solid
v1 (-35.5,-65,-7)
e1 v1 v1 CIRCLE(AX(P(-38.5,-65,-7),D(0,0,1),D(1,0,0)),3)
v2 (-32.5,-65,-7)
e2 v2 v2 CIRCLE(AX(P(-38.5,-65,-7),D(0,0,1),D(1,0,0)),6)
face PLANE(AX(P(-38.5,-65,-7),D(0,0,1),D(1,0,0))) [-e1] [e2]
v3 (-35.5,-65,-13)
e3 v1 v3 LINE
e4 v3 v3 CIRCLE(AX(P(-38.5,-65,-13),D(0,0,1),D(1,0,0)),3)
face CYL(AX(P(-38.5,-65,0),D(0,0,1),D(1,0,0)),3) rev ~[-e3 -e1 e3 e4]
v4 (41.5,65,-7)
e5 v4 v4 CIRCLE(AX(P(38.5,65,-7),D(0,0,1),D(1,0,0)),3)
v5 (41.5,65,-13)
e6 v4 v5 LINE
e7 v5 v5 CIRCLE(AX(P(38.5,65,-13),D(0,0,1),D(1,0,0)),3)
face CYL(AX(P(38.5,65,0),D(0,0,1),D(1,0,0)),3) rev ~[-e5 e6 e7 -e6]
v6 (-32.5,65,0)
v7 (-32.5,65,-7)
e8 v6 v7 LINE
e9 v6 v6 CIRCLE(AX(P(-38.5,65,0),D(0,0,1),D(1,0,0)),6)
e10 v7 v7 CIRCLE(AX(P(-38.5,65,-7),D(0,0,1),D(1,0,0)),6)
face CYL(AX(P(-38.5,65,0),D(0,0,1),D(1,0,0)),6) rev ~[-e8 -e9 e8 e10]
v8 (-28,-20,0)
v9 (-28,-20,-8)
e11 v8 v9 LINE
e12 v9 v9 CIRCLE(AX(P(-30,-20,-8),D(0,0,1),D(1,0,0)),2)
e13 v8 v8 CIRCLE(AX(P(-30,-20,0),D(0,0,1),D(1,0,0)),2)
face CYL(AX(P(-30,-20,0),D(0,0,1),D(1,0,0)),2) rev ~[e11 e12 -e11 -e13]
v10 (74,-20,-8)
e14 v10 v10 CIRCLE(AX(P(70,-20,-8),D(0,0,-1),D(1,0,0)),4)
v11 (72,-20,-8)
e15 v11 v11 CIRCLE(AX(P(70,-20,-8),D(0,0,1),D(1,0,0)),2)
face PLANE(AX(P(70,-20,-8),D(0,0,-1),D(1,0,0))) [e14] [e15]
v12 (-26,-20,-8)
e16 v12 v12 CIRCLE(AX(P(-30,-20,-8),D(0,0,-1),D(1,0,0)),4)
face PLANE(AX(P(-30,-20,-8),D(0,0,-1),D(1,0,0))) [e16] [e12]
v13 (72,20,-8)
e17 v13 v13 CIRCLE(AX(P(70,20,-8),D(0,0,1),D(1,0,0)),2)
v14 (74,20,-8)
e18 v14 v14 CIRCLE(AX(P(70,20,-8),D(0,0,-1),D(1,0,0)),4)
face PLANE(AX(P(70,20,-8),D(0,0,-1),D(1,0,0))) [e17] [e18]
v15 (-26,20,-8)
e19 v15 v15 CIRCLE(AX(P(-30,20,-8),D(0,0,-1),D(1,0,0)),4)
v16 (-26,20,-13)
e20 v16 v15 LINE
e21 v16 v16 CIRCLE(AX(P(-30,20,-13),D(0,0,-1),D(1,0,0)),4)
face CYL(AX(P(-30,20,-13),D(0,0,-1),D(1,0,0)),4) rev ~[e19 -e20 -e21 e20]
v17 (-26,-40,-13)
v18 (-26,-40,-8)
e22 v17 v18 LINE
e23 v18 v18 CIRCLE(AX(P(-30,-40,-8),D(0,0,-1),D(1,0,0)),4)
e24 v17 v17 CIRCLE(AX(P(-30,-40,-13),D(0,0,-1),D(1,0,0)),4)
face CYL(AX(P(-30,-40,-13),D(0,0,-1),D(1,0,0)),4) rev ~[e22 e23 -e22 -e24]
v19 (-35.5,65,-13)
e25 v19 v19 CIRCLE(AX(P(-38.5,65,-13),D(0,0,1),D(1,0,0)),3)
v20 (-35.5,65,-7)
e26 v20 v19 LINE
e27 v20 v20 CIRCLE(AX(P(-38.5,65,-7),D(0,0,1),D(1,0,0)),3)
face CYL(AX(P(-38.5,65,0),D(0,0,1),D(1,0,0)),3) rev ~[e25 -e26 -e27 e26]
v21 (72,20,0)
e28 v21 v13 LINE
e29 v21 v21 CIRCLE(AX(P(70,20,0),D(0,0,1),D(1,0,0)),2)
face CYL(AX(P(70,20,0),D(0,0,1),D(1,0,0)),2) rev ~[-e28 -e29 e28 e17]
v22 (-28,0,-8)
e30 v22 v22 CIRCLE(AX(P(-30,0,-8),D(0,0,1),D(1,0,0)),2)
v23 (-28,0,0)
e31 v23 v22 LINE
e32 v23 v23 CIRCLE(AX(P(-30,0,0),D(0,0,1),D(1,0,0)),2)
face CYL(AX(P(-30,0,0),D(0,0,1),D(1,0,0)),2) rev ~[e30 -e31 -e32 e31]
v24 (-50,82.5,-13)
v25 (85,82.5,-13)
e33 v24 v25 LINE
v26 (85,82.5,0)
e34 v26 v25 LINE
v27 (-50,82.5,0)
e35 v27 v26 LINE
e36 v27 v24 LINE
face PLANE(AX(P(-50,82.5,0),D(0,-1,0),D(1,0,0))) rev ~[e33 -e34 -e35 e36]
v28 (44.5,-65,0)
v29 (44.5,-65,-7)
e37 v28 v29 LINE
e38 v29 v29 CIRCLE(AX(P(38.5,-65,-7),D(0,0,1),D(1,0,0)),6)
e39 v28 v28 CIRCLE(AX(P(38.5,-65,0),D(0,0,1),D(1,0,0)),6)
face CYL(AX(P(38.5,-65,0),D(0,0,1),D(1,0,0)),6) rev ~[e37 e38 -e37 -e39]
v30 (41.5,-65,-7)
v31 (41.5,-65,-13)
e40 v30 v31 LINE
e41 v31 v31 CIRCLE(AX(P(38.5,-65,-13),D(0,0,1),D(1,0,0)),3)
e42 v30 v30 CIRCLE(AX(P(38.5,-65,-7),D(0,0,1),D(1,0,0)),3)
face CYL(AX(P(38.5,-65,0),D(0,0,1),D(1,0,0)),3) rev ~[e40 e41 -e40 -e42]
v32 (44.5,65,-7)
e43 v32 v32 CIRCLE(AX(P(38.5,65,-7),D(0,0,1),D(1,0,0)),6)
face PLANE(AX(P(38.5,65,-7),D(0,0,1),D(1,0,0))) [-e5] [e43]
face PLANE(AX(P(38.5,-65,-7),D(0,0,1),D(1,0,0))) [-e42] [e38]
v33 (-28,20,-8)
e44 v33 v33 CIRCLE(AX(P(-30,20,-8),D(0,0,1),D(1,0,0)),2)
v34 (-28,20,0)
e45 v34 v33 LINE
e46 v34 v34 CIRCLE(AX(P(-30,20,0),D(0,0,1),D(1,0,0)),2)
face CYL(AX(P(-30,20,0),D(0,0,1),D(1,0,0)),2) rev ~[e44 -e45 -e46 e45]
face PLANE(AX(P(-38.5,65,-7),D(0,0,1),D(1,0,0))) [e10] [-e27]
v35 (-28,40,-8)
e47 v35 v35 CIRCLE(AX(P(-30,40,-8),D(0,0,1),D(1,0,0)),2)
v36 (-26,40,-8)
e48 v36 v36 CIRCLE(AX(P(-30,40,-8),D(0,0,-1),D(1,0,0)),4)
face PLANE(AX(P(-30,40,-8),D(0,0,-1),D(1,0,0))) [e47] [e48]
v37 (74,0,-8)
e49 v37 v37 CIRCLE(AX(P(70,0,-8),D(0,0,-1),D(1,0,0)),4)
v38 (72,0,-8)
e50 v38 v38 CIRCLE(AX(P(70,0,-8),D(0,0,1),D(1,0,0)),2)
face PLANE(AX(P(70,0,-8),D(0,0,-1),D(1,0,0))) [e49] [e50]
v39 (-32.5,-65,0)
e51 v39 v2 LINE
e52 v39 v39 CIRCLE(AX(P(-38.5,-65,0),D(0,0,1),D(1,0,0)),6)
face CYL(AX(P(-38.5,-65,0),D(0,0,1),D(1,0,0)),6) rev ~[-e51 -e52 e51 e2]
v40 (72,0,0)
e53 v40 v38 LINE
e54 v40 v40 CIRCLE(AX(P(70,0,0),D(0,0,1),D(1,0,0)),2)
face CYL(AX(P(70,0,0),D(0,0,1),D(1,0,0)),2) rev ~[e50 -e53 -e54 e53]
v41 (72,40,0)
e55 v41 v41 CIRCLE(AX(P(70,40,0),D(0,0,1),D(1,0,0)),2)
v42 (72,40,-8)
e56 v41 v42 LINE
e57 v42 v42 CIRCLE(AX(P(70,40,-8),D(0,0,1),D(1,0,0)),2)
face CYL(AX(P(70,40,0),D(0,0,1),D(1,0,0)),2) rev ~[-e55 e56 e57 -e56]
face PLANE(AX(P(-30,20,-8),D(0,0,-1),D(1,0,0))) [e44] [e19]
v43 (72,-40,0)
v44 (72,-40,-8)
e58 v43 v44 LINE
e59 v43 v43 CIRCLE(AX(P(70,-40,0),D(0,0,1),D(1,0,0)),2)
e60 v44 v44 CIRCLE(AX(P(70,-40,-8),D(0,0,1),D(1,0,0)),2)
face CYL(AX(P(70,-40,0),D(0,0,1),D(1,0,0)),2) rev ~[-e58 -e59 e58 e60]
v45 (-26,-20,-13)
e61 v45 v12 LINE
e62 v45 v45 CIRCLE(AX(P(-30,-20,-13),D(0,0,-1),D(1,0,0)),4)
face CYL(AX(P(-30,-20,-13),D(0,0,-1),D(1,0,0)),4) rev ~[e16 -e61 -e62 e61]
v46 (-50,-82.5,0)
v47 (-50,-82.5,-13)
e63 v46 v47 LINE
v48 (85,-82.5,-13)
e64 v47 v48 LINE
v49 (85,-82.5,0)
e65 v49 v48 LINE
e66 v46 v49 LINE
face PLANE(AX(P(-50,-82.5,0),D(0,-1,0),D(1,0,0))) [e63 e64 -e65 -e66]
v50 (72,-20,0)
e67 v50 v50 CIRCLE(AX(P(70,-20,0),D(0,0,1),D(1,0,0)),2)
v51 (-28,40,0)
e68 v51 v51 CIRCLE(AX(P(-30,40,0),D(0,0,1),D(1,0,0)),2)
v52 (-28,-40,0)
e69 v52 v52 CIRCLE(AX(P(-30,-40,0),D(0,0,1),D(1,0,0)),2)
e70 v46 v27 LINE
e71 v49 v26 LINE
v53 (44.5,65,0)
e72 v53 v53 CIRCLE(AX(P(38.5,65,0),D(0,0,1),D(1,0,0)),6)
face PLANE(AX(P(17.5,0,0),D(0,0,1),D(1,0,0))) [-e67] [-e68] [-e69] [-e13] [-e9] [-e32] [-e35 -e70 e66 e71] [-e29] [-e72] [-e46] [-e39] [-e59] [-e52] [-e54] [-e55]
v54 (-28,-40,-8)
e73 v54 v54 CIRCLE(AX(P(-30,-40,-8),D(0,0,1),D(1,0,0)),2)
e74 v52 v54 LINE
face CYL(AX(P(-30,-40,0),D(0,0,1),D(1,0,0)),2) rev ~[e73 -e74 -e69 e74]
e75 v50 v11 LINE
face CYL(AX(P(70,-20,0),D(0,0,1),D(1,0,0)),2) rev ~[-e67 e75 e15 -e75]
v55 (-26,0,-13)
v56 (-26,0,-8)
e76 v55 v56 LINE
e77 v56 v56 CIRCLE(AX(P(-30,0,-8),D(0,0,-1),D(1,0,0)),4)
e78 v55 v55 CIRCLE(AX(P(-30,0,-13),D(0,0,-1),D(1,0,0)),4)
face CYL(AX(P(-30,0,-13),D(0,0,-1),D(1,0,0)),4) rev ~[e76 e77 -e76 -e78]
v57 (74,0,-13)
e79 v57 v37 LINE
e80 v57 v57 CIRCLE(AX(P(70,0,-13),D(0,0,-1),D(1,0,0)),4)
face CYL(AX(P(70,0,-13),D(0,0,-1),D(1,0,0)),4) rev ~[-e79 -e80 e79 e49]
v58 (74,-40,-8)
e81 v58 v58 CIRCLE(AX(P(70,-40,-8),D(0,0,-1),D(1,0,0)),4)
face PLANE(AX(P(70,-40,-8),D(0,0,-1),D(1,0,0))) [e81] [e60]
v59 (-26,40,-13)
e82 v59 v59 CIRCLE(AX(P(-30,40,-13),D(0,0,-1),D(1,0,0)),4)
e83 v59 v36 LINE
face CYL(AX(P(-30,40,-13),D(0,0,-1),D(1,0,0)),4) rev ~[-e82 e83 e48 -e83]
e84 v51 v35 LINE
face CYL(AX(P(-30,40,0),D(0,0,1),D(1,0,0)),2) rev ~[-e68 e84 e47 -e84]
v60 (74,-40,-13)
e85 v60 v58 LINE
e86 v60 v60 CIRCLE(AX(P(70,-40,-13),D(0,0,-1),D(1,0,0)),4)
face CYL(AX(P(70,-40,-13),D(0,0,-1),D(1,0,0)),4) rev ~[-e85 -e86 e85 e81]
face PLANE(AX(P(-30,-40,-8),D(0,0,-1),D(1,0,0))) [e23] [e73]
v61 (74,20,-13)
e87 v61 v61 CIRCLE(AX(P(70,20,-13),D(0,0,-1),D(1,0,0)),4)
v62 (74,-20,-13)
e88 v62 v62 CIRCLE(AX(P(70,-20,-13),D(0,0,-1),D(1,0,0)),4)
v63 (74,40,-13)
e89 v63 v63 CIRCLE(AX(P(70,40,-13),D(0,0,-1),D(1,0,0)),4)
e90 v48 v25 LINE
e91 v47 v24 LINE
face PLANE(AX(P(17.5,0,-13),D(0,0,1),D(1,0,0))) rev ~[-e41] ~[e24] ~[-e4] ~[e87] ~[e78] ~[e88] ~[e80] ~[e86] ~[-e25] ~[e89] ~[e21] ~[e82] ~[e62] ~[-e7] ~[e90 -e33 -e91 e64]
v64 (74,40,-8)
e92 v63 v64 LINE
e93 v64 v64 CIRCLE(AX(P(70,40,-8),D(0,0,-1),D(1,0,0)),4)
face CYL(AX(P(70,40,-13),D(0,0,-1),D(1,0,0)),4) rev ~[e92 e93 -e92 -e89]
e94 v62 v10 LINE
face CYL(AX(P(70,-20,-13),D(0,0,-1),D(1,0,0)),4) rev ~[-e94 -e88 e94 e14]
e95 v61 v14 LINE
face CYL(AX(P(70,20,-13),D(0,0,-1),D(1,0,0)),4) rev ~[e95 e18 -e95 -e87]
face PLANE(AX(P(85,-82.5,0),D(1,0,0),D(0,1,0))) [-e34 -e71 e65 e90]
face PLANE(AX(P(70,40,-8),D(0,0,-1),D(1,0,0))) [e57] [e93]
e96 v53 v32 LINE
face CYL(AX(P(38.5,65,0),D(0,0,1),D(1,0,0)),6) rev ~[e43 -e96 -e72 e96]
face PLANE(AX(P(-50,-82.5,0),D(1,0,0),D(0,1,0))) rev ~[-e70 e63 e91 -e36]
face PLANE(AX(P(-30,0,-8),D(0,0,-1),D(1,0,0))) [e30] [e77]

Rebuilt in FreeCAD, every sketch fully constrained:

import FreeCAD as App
import Part
import Sketcher

doc = App.newDocument("Part")
body = doc.addObject("PartDesign::Body", "Body")

sketch1 = body.newObject("Sketcher::SketchObject", "Sketch")
sketch1.AttachmentSupport = (doc.getObject("XY_Plane"), [""])
sketch1.MapMode = "FlatFace"
sketch1.addGeometry([
    Part.LineSegment(App.Vector(-50, 82.5, 0), App.Vector(-50, -82.5, 0)),
    Part.LineSegment(App.Vector(-50, -82.5, 0), App.Vector(85, -82.5, 0)),
    Part.LineSegment(App.Vector(85, -82.5, 0), App.Vector(85, 82.5, 0)),
    Part.LineSegment(App.Vector(85, 82.5, 0), App.Vector(-50, 82.5, 0)),
    Part.Circle(App.Vector(-38.5, -65, 0), App.Vector(0, 0, 1), 3),
    Part.Circle(App.Vector(-30, -40, 0), App.Vector(0, 0, 1), 2),
    Part.Circle(App.Vector(-30, -20, 0), App.Vector(0, 0, 1), 2),
    Part.Circle(App.Vector(38.5, -65, 0), App.Vector(0, 0, 1), 3),
    Part.Circle(App.Vector(70, -40, 0), App.Vector(0, 0, 1), 2),
    Part.Circle(App.Vector(70, -20, 0), App.Vector(0, 0, 1), 2),
    Part.Circle(App.Vector(-30, 0, 0), App.Vector(0, 0, 1), 2),
    Part.Circle(App.Vector(-30, 20, 0), App.Vector(0, 0, 1), 2),
    Part.Circle(App.Vector(-30, 40, 0), App.Vector(0, 0, 1), 2),
    Part.Circle(App.Vector(-38.5, 65, 0), App.Vector(0, 0, 1), 3),
    Part.Circle(App.Vector(70, 0, 0), App.Vector(0, 0, 1), 2),
    Part.Circle(App.Vector(70, 20, 0), App.Vector(0, 0, 1), 2),
    Part.Circle(App.Vector(38.5, 65, 0), App.Vector(0, 0, 1), 3),
    Part.Circle(App.Vector(70, 40, 0), App.Vector(0, 0, 1), 2),
], False)
sketch1.addConstraint([
    Sketcher.Constraint("Coincident", 0, 2, 1, 1),
    Sketcher.Constraint("Coincident", 1, 2, 2, 1),
    Sketcher.Constraint("Coincident", 2, 2, 3, 1),
    Sketcher.Constraint("Coincident", 3, 2, 0, 1),
    Sketcher.Constraint("Vertical", 0),
    Sketcher.Constraint("Horizontal", 1),
    Sketcher.Constraint("Vertical", 2),
    Sketcher.Constraint("Horizontal", 3),
    Sketcher.Constraint("Equal", 5, 6),
    Sketcher.Constraint("Equal", 4, 7),
    Sketcher.Constraint("Equal", 6, 8),
    Sketcher.Constraint("Equal", 8, 9),
    Sketcher.Constraint("Equal", 9, 10),
    Sketcher.Constraint("Equal", 10, 11),
    Sketcher.Constraint("Equal", 11, 12),
    Sketcher.Constraint("Equal", 7, 13),
    Sketcher.Constraint("Equal", 12, 14),
    Sketcher.Constraint("Equal", 14, 15),
    Sketcher.Constraint("Equal", 13, 16),
    Sketcher.Constraint("Equal", 15, 17),
    Sketcher.Constraint("Symmetric", 7, 3, 13, 3, -1, 1),
    Sketcher.Constraint("Symmetric", 4, 3, 16, 3, -1, 1),
    Sketcher.Constraint("Symmetric", 4, 3, 7, 3, -2),
    Sketcher.Constraint("Symmetric", 6, 3, 11, 3, -1),
    Sketcher.Constraint("Symmetric", 5, 3, 12, 3, -1),
    Sketcher.Constraint("Symmetric", 9, 3, 15, 3, -1),
    Sketcher.Constraint("Symmetric", 8, 3, 17, 3, -1),
    Sketcher.Constraint("PointOnObject", 10, 3, -1),
    Sketcher.Constraint("PointOnObject", 14, 3, -1),
    Sketcher.Constraint("Horizontal", 5, 3, 8, 3),
    Sketcher.Constraint("Horizontal", 6, 3, 9, 3),
    Sketcher.Constraint("Vertical", 5, 3, 6, 3),
    Sketcher.Constraint("Vertical", 8, 3, 9, 3),
    Sketcher.Constraint("Vertical", 6, 3, 10, 3),
    Sketcher.Constraint("Vertical", 9, 3, 14, 3),
    Sketcher.Constraint("Diameter", 4, 6.0),
    Sketcher.Constraint("Diameter", 5, 4.0),
    Sketcher.Constraint("DistanceX", 1, 1, 1, 2, 135.0),
    Sketcher.Constraint("DistanceY", 0, 2, 0, 1, 165.0),
    Sketcher.Constraint("DistanceY", 4, 3, -1, 1, 65.0),
    Sketcher.Constraint("DistanceX", 5, 3, -1, 1, 30.0),
    Sketcher.Constraint("DistanceY", 5, 3, -1, 1, 40.0),
    Sketcher.Constraint("DistanceY", 6, 3, -1, 1, 20.0),
    Sketcher.Constraint("DistanceX", -1, 1, 8, 3, 70.0),
    Sketcher.Constraint("DistanceX", 0, 2, -1, 1, 50.0),
    Sketcher.Constraint("DistanceX", 4, 3, 7, 3, 77.0),
    Sketcher.Constraint("DistanceY", 0, 2, -1, 1, 82.5),
])
pad1 = body.newObject("PartDesign::Pad", "Pad")
pad1.Profile = sketch1
pad1.Length = 13
pad1.Reversed = True

sketch2 = body.newObject("Sketcher::SketchObject", "Sketch001")
sketch2.AttachmentSupport = (doc.getObject("XY_Plane"), [""])
sketch2.MapMode = "FlatFace"
sketch2.addGeometry([
    Part.Circle(App.Vector(-38, 65, 0), App.Vector(0, 0, 1), 6),
    Part.Circle(App.Vector(38, 65, 0), App.Vector(0, 0, 1), 6),
    Part.Circle(App.Vector(-38, -65, 0), App.Vector(0, 0, 1), 6),
    Part.Circle(App.Vector(38, -65, 0), App.Vector(0, 0, 1), 6),
], False)
sketch2.addConstraint([
    Sketcher.Constraint("Equal", 0, 1),
    Sketcher.Constraint("Equal", 1, 2),
    Sketcher.Constraint("Equal", 2, 3),
    Sketcher.Constraint("Symmetric", 1, 3, 2, 3, -1, 1),
    Sketcher.Constraint("Symmetric", 0, 3, 3, 3, -1, 1),
    Sketcher.Constraint("Symmetric", 0, 3, 1, 3, -2),
    Sketcher.Constraint("Diameter", 0, 12.0),
    Sketcher.Constraint("DistanceY", -1, 1, 0, 3, 65.0),
    Sketcher.Constraint("DistanceX", 0, 3, 1, 3, 77.0),
])
pocket1 = body.newObject("PartDesign::Pocket", "Pocket")
pocket1.Profile = sketch2
pocket1.Length = 7

sketch3 = body.newObject("Sketcher::SketchObject", "Sketch002")
sketch3.AttachmentSupport = (doc.getObject("XY_Plane"), [""])
sketch3.MapMode = "FlatFace"
sketch3.AttachmentOffset = App.Placement(App.Vector(0, 0, -13), App.Rotation())
sketch3.addGeometry([
    Part.Circle(App.Vector(-30, -40, 0), App.Vector(0, 0, 1), 4),
    Part.Circle(App.Vector(-30, -20, 0), App.Vector(0, 0, 1), 4),
    Part.Circle(App.Vector(-30, 0, 0), App.Vector(0, 0, 1), 4),
    Part.Circle(App.Vector(-30, 20, 0), App.Vector(0, 0, 1), 4),
    Part.Circle(App.Vector(-30, 40, 0), App.Vector(0, 0, 1), 4),
    Part.Circle(App.Vector(70, -40, 0), App.Vector(0, 0, 1), 4),
    Part.Circle(App.Vector(70, 0, 0), App.Vector(0, 0, 1), 4),
    Part.Circle(App.Vector(70, 20, 0), App.Vector(0, 0, 1), 4),
    Part.Circle(App.Vector(70, 40, 0), App.Vector(0, 0, 1), 4),
    Part.Circle(App.Vector(70, -20, 0), App.Vector(0, 0, 1), 4),
], False)
sketch3.addConstraint([
    Sketcher.Constraint("Equal", 0, 1),
    Sketcher.Constraint("Equal", 1, 2),
    Sketcher.Constraint("Equal", 2, 3),
    Sketcher.Constraint("Equal", 3, 4),
    Sketcher.Constraint("Equal", 4, 5),
    Sketcher.Constraint("Equal", 5, 6),
    Sketcher.Constraint("Equal", 6, 7),
    Sketcher.Constraint("Equal", 7, 8),
    Sketcher.Constraint("Equal", 8, 9),
    Sketcher.Constraint("Symmetric", 1, 3, 3, 3, -1),
    Sketcher.Constraint("Symmetric", 0, 3, 4, 3, -1),
    Sketcher.Constraint("Symmetric", 5, 3, 8, 3, -1),
    Sketcher.Constraint("Symmetric", 7, 3, 9, 3, -1),
    Sketcher.Constraint("PointOnObject", 2, 3, -1),
    Sketcher.Constraint("PointOnObject", 6, 3, -1),
    Sketcher.Constraint("Horizontal", 0, 3, 5, 3),
    Sketcher.Constraint("Horizontal", 3, 3, 7, 3),
    Sketcher.Constraint("Vertical", 0, 3, 1, 3),
    Sketcher.Constraint("Vertical", 1, 3, 2, 3),
    Sketcher.Constraint("Vertical", 5, 3, 6, 3),
    Sketcher.Constraint("Vertical", 6, 3, 7, 3),
    Sketcher.Constraint("Diameter", 0, 8.0),
    Sketcher.Constraint("DistanceX", 0, 3, -1, 1, 30.0),
    Sketcher.Constraint("DistanceY", 0, 3, -1, 1, 40.0),
    Sketcher.Constraint("DistanceY", 1, 3, -1, 1, 20.0),
    Sketcher.Constraint("DistanceX", -1, 1, 5, 3, 70.0),
])
pocket2 = body.newObject("PartDesign::Pocket", "Pocket001")
pocket2.Profile = sketch3
pocket2.Length = 5
pocket2.Reversed = True

doc.recompute()
